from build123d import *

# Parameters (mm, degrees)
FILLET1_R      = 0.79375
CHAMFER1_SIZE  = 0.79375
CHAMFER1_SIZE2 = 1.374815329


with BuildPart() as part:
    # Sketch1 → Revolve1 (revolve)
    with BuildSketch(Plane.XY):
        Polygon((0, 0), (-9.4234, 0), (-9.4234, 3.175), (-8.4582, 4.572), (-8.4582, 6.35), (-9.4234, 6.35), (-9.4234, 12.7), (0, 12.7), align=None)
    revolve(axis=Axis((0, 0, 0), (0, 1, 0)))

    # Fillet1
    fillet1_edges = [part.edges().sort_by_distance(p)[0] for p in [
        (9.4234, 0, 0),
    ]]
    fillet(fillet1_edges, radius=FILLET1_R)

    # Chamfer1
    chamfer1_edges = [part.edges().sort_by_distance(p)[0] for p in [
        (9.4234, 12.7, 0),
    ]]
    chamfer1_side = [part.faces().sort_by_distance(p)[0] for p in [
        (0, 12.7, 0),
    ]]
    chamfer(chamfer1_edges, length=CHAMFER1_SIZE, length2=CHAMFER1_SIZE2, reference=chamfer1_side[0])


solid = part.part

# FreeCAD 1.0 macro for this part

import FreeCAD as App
import Part
import Sketcher
from FreeCAD import Vector
Q = App.Units.Quantity


def edges_at(feature, points):
    """Names of the edges that pass closest to the given points."""
    edges = feature.Shape.Edges
    near = lambda p: min(range(len(edges)), key=lambda i: edges[i].distToShape(Part.Vertex(*p))[0])
    return sorted({f"Edge{near(p) + 1}" for p in points})


def add_polygon(sketch, points):
    """Adds a closed chain of lines whose ends are joined by coincident constraints."""
    first, n = sketch.GeometryCount, len(points)
    for a, b in zip(points, points[1:] + points[:1]):
        sketch.addGeometry(Part.LineSegment(App.Vector(*a, 0), App.Vector(*b, 0)), False)
    for i in range(n):
        sketch.addConstraint(Sketcher.Constraint("Coincident", first + i, 2, first + (i + 1) % n, 1))

doc = App.newDocument("Part")
body = doc.addObject("PartDesign::Body", "Body")

sketch1 = body.newObject("Sketcher::SketchObject", "Sketch")
sketch1.AttachmentSupport = (doc.getObject("XY_Plane"), [""])
sketch1.MapMode = "FlatFace"
add_polygon(sketch1, [(-9.4, 0), (0, 0), (0, 12.7), (-9.4, 12.7), (-9.4, 6.3), (-8.5, 6.3), (-8.5, 4.6), (-9.4, 3.2)])
sketch1.addConstraint(Sketcher.Constraint("Horizontal", 0))
sketch1.addConstraint(Sketcher.Constraint("Vertical", 1))
sketch1.addConstraint(Sketcher.Constraint("Horizontal", 2))
sketch1.addConstraint(Sketcher.Constraint("Vertical", 3))
sketch1.addConstraint(Sketcher.Constraint("Horizontal", 4))
sketch1.addConstraint(Sketcher.Constraint("Vertical", 5))
sketch1.addConstraint(Sketcher.Constraint("Vertical", 7))
sketch1.addConstraint(Sketcher.Constraint("Coincident", 0, 2, -1, 1))
sketch1.addConstraint(Sketcher.Constraint("Vertical", 3, 2, 6, 2))
sketch1.addConstraint(Sketcher.Constraint("DistanceY", 1, 1, 1, 2, Q("0.5 in")))
sketch1.addConstraint(Sketcher.Constraint("DistanceY", 3, 2, 3, 1, Q("0.25 in")))
sketch1.addConstraint(Sketcher.Constraint("DistanceY", 5, 2, 5, 1, Q("0.07 in")))
sketch1.addConstraint(Sketcher.Constraint("DistanceX", 0, 1, 0, 2, Q("0.371 in")))
sketch1.addConstraint(Sketcher.Constraint("DistanceX", 4, 1, 4, 2, Q("0.038 in")))
sketch1.addConstraint(Sketcher.Constraint("DistanceY", 7, 2, 7, 1, Q("0.125 in")))
revolution = body.newObject("PartDesign::Revolution", "Revolution")
revolution.Profile = sketch1
revolution.ReferenceAxis = (sketch1, ["V_Axis"])
revolution.Angle = 360
doc.recompute()

fillet = body.newObject("PartDesign::Fillet", "Fillet")
fillet.Base = (revolution, edges_at(revolution, [(9.423, 0, 0)]))
fillet.Radius = Q("0.03125 in")
doc.recompute()

chamfer = body.newObject("PartDesign::Chamfer", "Chamfer")
chamfer.Base = (fillet, edges_at(fillet, [(9.423, 12.7, 0)]))
chamfer.ChamferType = "Two distances"
chamfer.Size = Q("0.03125 in")
chamfer.Size2 = 1.374815
chamfer.FlipDirection = True

doc.recompute()
